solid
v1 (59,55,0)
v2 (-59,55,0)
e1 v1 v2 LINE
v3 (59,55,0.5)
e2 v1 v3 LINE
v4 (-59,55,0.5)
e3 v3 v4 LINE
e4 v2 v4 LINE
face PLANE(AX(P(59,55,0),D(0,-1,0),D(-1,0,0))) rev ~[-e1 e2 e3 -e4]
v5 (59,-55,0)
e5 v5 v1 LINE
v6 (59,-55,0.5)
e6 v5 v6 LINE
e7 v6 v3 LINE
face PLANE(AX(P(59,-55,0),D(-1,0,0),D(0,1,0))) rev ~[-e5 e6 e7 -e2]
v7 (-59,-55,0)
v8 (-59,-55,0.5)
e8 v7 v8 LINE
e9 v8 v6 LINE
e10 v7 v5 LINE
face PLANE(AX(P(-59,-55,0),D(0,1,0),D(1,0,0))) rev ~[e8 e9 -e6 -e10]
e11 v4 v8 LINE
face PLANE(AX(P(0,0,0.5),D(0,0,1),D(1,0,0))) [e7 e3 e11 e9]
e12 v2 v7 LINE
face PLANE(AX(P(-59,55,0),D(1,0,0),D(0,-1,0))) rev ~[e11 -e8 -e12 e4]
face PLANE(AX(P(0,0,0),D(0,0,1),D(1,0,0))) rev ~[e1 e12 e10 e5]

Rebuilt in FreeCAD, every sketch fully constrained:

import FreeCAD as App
import Part
import Sketcher
from FreeCAD import Vector

doc = App.newDocument("Part")
body = doc.addObject("PartDesign::Body", "Body")

sketch1 = body.newObject("Sketcher::SketchObject", "Sketch")
sketch1.AttachmentSupport = (doc.getObject("XY_Plane"), [""])
sketch1.MapMode = "FlatFace"
sketch1.addGeometry(Part.LineSegment(Vector(-59, 55, 0), Vector(-59, -55, 0)), False)
sketch1.addGeometry(Part.LineSegment(Vector(-59, -55, 0), Vector(59, -55, 0)), False)
sketch1.addGeometry(Part.LineSegment(Vector(59, -55, 0), Vector(59, 55, 0)), False)
sketch1.addGeometry(Part.LineSegment(Vector(59, 55, 0), Vector(-59, 55, 0)), False)
sketch1.addConstraint(Sketcher.Constraint("Coincident", 0, 2, 1, 1))
sketch1.addConstraint(Sketcher.Constraint("Coincident", 1, 2, 2, 1))
sketch1.addConstraint(Sketcher.Constraint("Coincident", 2, 2, 3, 1))
sketch1.addConstraint(Sketcher.Constraint("Coincident", 3, 2, 0, 1))
sketch1.addConstraint(Sketcher.Constraint("Vertical", 0))
sketch1.addConstraint(Sketcher.Constraint("Horizontal", 1))
sketch1.addConstraint(Sketcher.Constraint("Vertical", 2))
sketch1.addConstraint(Sketcher.Constraint("Horizontal", 3))
sketch1.addConstraint(Sketcher.Constraint("Symmetric", 0, 2, 2, 2, -1, 1))
sketch1.addConstraint(Sketcher.Constraint("DistanceX", 1, 1, 1, 2, 118.0))
sketch1.addConstraint(Sketcher.Constraint("DistanceY", 0, 2, 0, 1, 110.0))
pad1 = body.newObject("PartDesign::Pad", "Pad")
pad1.Profile = sketch1
pad1.Length = 0.5

doc.recompute()
